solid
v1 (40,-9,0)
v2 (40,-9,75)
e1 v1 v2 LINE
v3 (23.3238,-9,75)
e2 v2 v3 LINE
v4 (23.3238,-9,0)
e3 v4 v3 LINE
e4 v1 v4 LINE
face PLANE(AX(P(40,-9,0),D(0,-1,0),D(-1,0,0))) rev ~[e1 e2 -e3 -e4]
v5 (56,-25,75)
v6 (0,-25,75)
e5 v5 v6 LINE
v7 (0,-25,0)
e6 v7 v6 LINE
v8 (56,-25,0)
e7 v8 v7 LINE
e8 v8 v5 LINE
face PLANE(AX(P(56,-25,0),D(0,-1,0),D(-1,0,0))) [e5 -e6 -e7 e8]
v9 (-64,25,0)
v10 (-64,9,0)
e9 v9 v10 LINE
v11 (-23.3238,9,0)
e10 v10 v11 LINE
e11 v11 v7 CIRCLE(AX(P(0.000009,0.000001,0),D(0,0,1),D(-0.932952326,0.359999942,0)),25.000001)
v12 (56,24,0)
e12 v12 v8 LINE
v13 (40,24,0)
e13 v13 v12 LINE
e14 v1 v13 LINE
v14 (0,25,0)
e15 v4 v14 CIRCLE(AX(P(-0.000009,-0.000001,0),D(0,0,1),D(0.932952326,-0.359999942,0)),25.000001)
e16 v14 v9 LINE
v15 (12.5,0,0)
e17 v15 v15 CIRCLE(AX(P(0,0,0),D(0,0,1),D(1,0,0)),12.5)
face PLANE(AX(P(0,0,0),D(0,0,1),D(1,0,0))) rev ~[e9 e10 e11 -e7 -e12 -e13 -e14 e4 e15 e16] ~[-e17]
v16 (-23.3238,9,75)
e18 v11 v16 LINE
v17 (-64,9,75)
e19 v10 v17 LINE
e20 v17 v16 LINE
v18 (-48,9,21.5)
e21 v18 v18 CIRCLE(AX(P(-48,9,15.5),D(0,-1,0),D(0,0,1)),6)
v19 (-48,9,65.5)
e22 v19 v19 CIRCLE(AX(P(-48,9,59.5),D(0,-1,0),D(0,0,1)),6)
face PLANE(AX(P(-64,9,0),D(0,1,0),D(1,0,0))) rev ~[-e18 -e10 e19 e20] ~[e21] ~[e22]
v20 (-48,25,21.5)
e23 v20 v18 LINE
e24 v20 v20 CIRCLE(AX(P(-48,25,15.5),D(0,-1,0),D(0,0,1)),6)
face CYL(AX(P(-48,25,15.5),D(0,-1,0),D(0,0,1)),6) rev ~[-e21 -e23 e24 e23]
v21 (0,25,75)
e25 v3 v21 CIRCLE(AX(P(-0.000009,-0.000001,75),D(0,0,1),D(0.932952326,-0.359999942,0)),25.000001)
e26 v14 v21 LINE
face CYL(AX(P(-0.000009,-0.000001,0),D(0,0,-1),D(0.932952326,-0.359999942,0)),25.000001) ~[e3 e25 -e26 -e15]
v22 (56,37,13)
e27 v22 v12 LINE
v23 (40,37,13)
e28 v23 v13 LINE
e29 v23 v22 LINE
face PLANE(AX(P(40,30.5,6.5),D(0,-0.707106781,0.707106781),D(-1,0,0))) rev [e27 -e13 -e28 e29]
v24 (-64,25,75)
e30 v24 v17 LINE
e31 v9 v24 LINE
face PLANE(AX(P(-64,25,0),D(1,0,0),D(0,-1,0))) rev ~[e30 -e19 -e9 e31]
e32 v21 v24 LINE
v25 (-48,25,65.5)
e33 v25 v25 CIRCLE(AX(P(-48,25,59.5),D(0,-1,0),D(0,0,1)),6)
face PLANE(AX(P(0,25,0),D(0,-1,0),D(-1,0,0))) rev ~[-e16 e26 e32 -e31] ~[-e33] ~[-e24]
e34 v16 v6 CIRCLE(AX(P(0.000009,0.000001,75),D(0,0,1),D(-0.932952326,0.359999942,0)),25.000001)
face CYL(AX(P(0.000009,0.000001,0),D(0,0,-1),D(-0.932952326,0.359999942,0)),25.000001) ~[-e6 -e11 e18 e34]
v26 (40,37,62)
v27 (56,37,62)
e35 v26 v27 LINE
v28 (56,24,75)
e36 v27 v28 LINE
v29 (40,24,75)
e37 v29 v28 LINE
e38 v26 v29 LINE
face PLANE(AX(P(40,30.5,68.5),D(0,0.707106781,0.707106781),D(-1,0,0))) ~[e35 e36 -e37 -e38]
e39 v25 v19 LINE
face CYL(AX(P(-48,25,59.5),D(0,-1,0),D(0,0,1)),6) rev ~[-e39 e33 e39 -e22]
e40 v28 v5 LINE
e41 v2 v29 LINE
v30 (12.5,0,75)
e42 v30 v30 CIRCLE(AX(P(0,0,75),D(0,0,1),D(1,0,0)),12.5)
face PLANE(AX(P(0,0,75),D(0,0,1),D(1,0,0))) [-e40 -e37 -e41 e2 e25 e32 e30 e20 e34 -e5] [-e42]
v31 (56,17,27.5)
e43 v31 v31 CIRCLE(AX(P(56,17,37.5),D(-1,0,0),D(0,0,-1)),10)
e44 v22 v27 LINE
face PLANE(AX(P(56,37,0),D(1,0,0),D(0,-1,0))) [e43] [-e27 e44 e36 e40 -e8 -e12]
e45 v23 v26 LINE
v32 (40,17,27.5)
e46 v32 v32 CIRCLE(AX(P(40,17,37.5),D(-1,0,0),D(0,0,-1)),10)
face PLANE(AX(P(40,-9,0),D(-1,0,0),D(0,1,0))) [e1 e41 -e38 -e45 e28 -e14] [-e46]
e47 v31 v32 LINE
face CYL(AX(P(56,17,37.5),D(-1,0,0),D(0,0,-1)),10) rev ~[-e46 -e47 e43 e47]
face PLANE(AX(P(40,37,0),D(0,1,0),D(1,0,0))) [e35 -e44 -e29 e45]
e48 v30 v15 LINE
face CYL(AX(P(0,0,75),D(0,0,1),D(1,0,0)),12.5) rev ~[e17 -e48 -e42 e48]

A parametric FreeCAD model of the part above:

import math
import FreeCAD as App
import Part
import Sketcher

V = App.Vector


def edges_at(feature, points):
    """Names of the edges that pass closest to the given points."""
    edges = feature.Shape.Edges
    near = lambda p: min(range(len(edges)), key=lambda i: edges[i].distToShape(Part.Vertex(*p))[0])
    return sorted({f"Edge{near(p) + 1}" for p in points})

doc = App.newDocument("Part")
params = doc.addObject("Spreadsheet::Sheet", "Params")
for row, (alias, value) in enumerate([
    ("sketch1_radius", "25 mm"),
    ("sketch1_width", "16 mm"),
    ("sketch1_width2", "56 mm"),
    ("sketch1_height", "62 mm"),
    ("sketch1_width3", "64 mm"),
    ("pad1_length", "75 mm"),
    ("sketch2_diameter", "25 mm"),
    ("pocket1_length", "75 mm"),
    ("chamfer_size", "13 mm"),
    ("sketch3_diameter", "20 mm"),
    ("hole_diameter", "20 mm"),
    ("hole_depth", "16 mm"),
    ("sketch4_diameter", "12 mm"),
    ("hole2_diameter", "12 mm"),
], start=1):
    params.set(f"A{row}", alias)
    params.set(f"B{row}", "=" + value)
    params.setAlias(f"B{row}", alias)

body = doc.addObject("PartDesign::Body", "Body")

# Sketch on XY plane
sketch1 = body.newObject("Sketcher::SketchObject", "Sketch")
sketch1.AttachmentSupport = (doc.getObject("XY_Plane"), [""])
sketch1.MapMode = "FlatFace"
sketch1.addGeometry(Part.LineSegment(V(56, 37, 0), V(40, 37, 0)), False)
sketch1.addGeometry(Part.LineSegment(V(40, 37, 0), V(40, -9, 0)), False)
sketch1.addGeometry(Part.LineSegment(V(40, -9, 0), V(23.3238, -9, 0)), False)
sketch1.addGeometry(Part.ArcOfCircle(Part.Circle(V(0, 0, 0), V(0, 0, 1), 24.999993), math.radians(-21.100202), math.radians(90)), False)
sketch1.addGeometry(Part.LineSegment(V(0, 25, 0), V(-64, 25, 0)), False)
sketch1.addGeometry(Part.LineSegment(V(-64, 25, 0), V(-64, 9, 0)), False)
sketch1.addGeometry(Part.LineSegment(V(-64, 9, 0), V(-23.3238, 9, 0)), False)
sketch1.addGeometry(Part.ArcOfCircle(Part.Circle(V(0, 0, 0), V(0, 0, 1), 24.999993), math.radians(158.899798), math.radians(270)), False)
sketch1.addGeometry(Part.LineSegment(V(0, -25, 0), V(56, -25, 0)), False)
sketch1.addGeometry(Part.LineSegment(V(56, -25, 0), V(56, 37, 0)), False)
sketch1.addConstraint(Sketcher.Constraint("Coincident", 0, 2, 1, 1))
sketch1.addConstraint(Sketcher.Constraint("Coincident", 1, 2, 2, 1))
sketch1.addConstraint(Sketcher.Constraint("Coincident", 2, 2, 3, 1))
sketch1.addConstraint(Sketcher.Constraint("Tangent", 3, 2, 4, 1))
sketch1.addConstraint(Sketcher.Constraint("Coincident", 4, 2, 5, 1))
sketch1.addConstraint(Sketcher.Constraint("Coincident", 5, 2, 6, 1))
sketch1.addConstraint(Sketcher.Constraint("Coincident", 6, 2, 7, 1))
sketch1.addConstraint(Sketcher.Constraint("Tangent", 7, 2, 8, 1))
sketch1.addConstraint(Sketcher.Constraint("Coincident", 8, 2, 9, 1))
sketch1.addConstraint(Sketcher.Constraint("Coincident", 9, 2, 0, 1))
sketch1.addConstraint(Sketcher.Constraint("Horizontal", 0))
sketch1.addConstraint(Sketcher.Constraint("Vertical", 1))
sketch1.addConstraint(Sketcher.Constraint("Horizontal", 2))
sketch1.addConstraint(Sketcher.Constraint("Horizontal", 4))
sketch1.addConstraint(Sketcher.Constraint("Vertical", 5))
sketch1.addConstraint(Sketcher.Constraint("Horizontal", 6))
sketch1.addConstraint(Sketcher.Constraint("Horizontal", 8))
sketch1.addConstraint(Sketcher.Constraint("Vertical", 9))
sketch1.addConstraint(Sketcher.Constraint("Coincident", 3, 3, -1, 1))
sketch1.addConstraint(Sketcher.Constraint("Coincident", 7, 3, -1, 1))
sketch1.addConstraint(Sketcher.Constraint("Equal", 3, 7))
sketch1.addConstraint(Sketcher.Constraint("Equal", 0, 5))
sketch1.addConstraint(Sketcher.Constraint("Radius", 3, 25.0))
sketch1.addConstraint(Sketcher.Constraint("DistanceX", 0, 2, 0, 1, 16.0))
sketch1.addConstraint(Sketcher.Constraint("DistanceX", 8, 1, 8, 2, 56.0))
sketch1.addConstraint(Sketcher.Constraint("DistanceY", 9, 1, 9, 2, 62.0))
sketch1.addConstraint(Sketcher.Constraint("DistanceY", 7, 2, 2, 2, 16.0))
sketch1.addConstraint(Sketcher.Constraint("DistanceX", 4, 2, 4, 1, 64.0))
sketch1.setExpression("Constraints[22]", "Params.sketch1_radius")
sketch1.setExpression("Constraints[23]", "Params.sketch1_width")
sketch1.setExpression("Constraints[24]", "Params.sketch1_width2")
sketch1.setExpression("Constraints[25]", "Params.sketch1_height")
sketch1.setExpression("Constraints[27]", "Params.sketch1_width3")
pad1 = body.newObject("PartDesign::Pad", "Pad")
pad1.Profile = sketch1
pad1.setExpression("Length", "Params.pad1_length")

# Sketch on XY plane
sketch2 = body.newObject("Sketcher::SketchObject", "Sketch001")
sketch2.AttachmentSupport = (doc.getObject("XY_Plane"), [""])
sketch2.MapMode = "FlatFace"
sketch2.AttachmentOffset = App.Placement(V(0, 0, 75), App.Rotation())
sketch2.addGeometry(Part.Circle(V(0, 0, 0), V(0, 0, 1), 12.5), False)
sketch2.addConstraint(Sketcher.Constraint("Coincident", 0, 3, -1, 1))
sketch2.addConstraint(Sketcher.Constraint("Diameter", 0, 25.0))
sketch2.setExpression("Constraints[1]", "Params.sketch2_diameter")
pocket1 = body.newObject("PartDesign::Pocket", "Pocket")
pocket1.Profile = sketch2
pocket1.setExpression("Length", "Params.pocket1_length")
doc.recompute()

chamfer = body.newObject("PartDesign::Chamfer", "Chamfer")
chamfer.Base = (pocket1, edges_at(pocket1, [(48, 37, 75), (48, 37, 0)]))
chamfer.setExpression("Size", "Params.chamfer_size")

# Sketch on YZ plane
sketch3 = body.newObject("Sketcher::SketchObject", "Sketch002")
sketch3.AttachmentSupport = (doc.getObject("YZ_Plane"), [""])
sketch3.MapMode = "FlatFace"
sketch3.AttachmentOffset = App.Placement(V(0, 0, 56), App.Rotation())
sketch3.addGeometry(Part.Circle(V(17, 37.5, 0), V(0, 0, 1), 10), False)
sketch3.addConstraint(Sketcher.Constraint("Diameter", 0, 20.0))
sketch3.addConstraint(Sketcher.Constraint("DistanceX", -1, 1, 0, 3, 17.0))
sketch3.addConstraint(Sketcher.Constraint("DistanceY", -1, 1, 0, 3, 37.5))
sketch3.setExpression("Constraints[0]", "Params.sketch3_diameter")
doc.recompute()
hole = body.newObject("PartDesign::Hole", "Hole")
hole.Profile = sketch3
hole.ThreadType = "None"
hole.setExpression("Diameter", "Params.hole_diameter")
hole.DepthType = "Dimension"
hole.setExpression("Depth", "Params.hole_depth")
hole.DrillPoint = "Flat"

# Sketch on XZ plane
sketch4 = body.newObject("Sketcher::SketchObject", "Sketch003")
sketch4.AttachmentSupport = (doc.getObject("XZ_Plane"), [""])
sketch4.MapMode = "FlatFace"
sketch4.AttachmentOffset = App.Placement(V(0, 0, -25), App.Rotation())
sketch4.addGeometry(Part.Circle(V(-48, 59.5, 0), V(0, 0, 1), 6), False)
sketch4.addGeometry(Part.Circle(V(-48, 15.5, 0), V(0, 0, 1), 6), False)
sketch4.addConstraint(Sketcher.Constraint("Equal", 0, 1))
sketch4.addConstraint(Sketcher.Constraint("Vertical", 0, 3, 1, 3))
sketch4.addConstraint(Sketcher.Constraint("Diameter", 0, 12.0))
sketch4.addConstraint(Sketcher.Constraint("DistanceX", 0, 3, -1, 1, 48.0))
sketch4.addConstraint(Sketcher.Constraint("DistanceY", 1, 3, 0, 3, 44.0))
sketch4.addConstraint(Sketcher.Constraint("DistanceY", -1, 1, 0, 3, 59.5))
sketch4.setExpression("Constraints[2]", "Params.sketch4_diameter")
doc.recompute()
hole2 = body.newObject("PartDesign::Hole", "Hole001")
hole2.Profile = sketch4
hole2.ThreadType = "None"
hole2.setExpression("Diameter", "Params.hole2_diameter")
hole2.DepthType = "ThroughAll"
hole2.Reversed = True

doc.recompute()
